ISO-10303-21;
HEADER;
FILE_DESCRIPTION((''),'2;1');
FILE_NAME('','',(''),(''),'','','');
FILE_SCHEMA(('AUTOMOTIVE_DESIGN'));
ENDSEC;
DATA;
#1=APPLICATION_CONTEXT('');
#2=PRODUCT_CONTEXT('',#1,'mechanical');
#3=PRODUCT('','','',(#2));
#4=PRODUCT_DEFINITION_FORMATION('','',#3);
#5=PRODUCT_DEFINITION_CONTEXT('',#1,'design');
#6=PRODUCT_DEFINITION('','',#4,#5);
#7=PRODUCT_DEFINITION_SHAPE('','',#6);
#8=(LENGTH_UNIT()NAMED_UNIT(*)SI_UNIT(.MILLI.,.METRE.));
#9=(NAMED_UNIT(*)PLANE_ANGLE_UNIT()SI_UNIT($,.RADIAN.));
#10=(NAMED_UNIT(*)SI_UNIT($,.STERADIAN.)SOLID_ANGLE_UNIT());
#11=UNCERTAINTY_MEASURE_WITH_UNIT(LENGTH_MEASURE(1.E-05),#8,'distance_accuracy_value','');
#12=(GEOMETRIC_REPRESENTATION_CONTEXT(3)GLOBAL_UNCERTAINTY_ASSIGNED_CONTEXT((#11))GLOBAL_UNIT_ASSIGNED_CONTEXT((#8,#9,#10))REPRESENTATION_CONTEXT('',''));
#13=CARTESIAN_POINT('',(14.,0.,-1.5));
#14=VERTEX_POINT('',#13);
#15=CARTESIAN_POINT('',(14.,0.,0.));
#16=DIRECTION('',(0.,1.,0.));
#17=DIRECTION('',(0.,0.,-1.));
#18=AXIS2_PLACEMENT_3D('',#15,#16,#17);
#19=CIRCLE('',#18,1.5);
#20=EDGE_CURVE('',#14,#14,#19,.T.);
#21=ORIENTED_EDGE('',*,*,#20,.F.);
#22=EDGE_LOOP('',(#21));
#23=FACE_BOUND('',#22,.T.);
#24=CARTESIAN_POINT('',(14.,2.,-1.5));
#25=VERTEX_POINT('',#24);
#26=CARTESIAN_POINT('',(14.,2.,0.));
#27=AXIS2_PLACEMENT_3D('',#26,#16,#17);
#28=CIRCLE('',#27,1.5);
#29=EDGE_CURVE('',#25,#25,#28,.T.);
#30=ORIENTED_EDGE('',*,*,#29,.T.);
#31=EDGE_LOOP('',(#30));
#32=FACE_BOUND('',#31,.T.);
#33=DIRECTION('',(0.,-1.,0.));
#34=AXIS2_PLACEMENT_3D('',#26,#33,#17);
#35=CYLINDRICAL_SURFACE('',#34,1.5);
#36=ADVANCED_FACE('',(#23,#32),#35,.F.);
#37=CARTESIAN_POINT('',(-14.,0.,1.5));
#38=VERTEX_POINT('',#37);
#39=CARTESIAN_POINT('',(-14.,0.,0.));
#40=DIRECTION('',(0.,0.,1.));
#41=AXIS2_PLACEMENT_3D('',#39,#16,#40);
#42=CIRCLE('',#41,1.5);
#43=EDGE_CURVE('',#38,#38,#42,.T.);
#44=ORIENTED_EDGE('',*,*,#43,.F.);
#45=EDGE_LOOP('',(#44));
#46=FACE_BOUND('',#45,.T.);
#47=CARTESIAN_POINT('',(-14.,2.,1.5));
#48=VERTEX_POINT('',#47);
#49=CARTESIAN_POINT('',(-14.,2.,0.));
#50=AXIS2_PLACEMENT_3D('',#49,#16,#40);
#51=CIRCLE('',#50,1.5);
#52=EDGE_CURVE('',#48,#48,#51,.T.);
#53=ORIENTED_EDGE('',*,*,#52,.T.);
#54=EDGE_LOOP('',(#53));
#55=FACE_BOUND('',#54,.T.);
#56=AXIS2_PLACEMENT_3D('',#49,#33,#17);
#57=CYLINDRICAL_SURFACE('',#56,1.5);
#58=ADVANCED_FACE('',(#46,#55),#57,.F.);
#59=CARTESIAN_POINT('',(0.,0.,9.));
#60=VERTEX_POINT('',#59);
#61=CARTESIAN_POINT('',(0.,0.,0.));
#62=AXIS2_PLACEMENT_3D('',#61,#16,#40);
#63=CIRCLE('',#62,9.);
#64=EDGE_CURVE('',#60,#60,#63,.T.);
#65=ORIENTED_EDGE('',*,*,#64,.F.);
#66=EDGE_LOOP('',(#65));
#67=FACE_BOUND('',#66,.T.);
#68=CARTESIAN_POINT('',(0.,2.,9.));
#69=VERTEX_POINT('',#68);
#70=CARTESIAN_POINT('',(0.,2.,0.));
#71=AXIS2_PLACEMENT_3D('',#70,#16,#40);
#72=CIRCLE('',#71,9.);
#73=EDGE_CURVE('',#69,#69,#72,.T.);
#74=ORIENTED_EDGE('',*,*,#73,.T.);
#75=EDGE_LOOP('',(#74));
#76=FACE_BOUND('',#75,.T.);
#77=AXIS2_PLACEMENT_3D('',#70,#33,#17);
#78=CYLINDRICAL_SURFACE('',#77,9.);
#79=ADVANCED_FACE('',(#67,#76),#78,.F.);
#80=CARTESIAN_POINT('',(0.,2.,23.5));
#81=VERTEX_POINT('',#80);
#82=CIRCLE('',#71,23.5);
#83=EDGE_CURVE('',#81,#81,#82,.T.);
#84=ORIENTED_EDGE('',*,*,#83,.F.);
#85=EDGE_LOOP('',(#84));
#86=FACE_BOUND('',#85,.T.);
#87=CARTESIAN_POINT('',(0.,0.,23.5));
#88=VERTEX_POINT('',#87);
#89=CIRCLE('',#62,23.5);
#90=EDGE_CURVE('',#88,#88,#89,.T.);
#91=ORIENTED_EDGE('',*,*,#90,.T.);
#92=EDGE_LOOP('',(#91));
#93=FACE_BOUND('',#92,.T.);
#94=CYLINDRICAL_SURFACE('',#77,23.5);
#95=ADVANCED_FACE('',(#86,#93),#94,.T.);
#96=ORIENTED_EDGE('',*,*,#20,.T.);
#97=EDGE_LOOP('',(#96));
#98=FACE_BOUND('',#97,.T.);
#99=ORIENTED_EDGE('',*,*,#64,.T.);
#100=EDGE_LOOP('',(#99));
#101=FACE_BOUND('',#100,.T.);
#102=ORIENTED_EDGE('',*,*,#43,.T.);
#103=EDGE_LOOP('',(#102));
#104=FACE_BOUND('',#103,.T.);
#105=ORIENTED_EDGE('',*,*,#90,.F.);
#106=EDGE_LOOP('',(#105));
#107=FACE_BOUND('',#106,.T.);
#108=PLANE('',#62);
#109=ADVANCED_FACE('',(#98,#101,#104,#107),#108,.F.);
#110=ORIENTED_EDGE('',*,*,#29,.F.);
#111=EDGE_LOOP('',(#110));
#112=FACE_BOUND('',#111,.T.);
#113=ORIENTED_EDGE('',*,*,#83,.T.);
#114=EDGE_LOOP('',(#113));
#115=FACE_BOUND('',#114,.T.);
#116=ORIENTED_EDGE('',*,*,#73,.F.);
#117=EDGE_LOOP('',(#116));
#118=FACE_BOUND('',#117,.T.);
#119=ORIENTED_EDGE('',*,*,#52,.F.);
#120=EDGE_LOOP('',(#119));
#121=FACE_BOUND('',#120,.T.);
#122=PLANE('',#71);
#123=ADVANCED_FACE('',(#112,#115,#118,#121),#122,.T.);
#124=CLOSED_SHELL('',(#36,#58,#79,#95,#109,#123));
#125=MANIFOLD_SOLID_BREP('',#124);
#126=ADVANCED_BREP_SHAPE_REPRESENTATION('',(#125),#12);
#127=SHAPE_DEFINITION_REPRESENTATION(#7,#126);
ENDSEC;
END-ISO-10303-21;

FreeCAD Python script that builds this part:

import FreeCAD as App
import Part
import Sketcher

V = App.Vector

doc = App.newDocument("Part")
body = doc.addObject("PartDesign::Body", "Body")

sketch1 = body.newObject("Sketcher::SketchObject", "Sketch")
sketch1.AttachmentSupport = (doc.getObject("XZ_Plane"), [""])
sketch1.MapMode = "FlatFace"
sketch1.addGeometry([
    Part.Circle(V(0, 0, 0), V(0, 0, 1), 23.5),
    Part.Circle(V(-14, 0, 0), V(0, 0, 1), 1.5),
    Part.Circle(V(14, 0, 0), V(0, 0, 1), 1.5),
    Part.Circle(V(0, 0, 0), V(0, 0, 1), 9),
], False)
sketch1.addConstraint([
    Sketcher.Constraint("Coincident", 0, 3, -1, 1),
    Sketcher.Constraint("Coincident", 3, 3, -1, 1),
    Sketcher.Constraint("Equal", 1, 2),
    Sketcher.Constraint("Symmetric", 1, 3, 2, 3, -1, 1),
    Sketcher.Constraint("PointOnObject", 1, 3, -1),
    Sketcher.Constraint("Diameter", 0, 47.0),
    Sketcher.Constraint("Diameter", 1, 3.0),
    Sketcher.Constraint("Diameter", 3, 18.0),
    Sketcher.Constraint("DistanceX", 1, 3, -1, 1, 14.0),
])
pad1 = body.newObject("PartDesign::Pad", "Pad")
pad1.Profile = sketch1
pad1.Length = 2
pad1.Reversed = True

doc.recompute()
